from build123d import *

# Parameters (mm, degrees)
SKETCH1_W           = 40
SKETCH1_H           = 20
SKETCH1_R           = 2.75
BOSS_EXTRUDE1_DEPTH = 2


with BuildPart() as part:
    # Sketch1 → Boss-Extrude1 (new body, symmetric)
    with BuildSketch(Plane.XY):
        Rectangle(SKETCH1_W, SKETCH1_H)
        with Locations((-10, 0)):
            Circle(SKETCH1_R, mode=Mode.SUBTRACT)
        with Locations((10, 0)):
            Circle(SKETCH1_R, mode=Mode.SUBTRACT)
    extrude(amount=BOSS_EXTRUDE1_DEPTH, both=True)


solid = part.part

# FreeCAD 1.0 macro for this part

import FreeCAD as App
import Part
import Sketcher
Q = App.Units.Quantity


def add_polygon(sketch, points):
    """Adds a closed chain of lines whose ends are joined by coincident constraints."""
    first, n = sketch.GeometryCount, len(points)
    for a, b in zip(points, points[1:] + points[:1]):
        sketch.addGeometry(Part.LineSegment(App.Vector(*a, 0), App.Vector(*b, 0)), False)
    for i in range(n):
        sketch.addConstraint(Sketcher.Constraint("Coincident", first + i, 2, first + (i + 1) % n, 1))

doc = App.newDocument("Part")
body = doc.addObject("PartDesign::Body", "Body")

sketch1 = doc.addObject("Sketcher::SketchObject", "Sketch")
body.addObject(sketch1)
sketch1.AttachmentSupport = (doc.XY_Plane, [""])
sketch1.MapMode = "FlatFace"
add_polygon(sketch1, [(-20, 10), (-20, -10), (20, -10), (20, 10)])
sketch1.addGeometry(Part.Circle(App.Vector(-10, 0, 0), App.Vector(0, 0, 1), 2.75), False)
sketch1.addGeometry(Part.Circle(App.Vector(10, 0, 0), App.Vector(0, 0, 1), 2.75), False)
sketch1.addConstraint(Sketcher.Constraint("Vertical", 0))
sketch1.addConstraint(Sketcher.Constraint("Horizontal", 1))
sketch1.addConstraint(Sketcher.Constraint("Vertical", 2))
sketch1.addConstraint(Sketcher.Constraint("Horizontal", 3))
sketch1.addConstraint(Sketcher.Constraint("Equal", 4, 5))
sketch1.addConstraint(Sketcher.Constraint("Symmetric", 4, 3, 5, 3, -1, 1))
sketch1.addConstraint(Sketcher.Constraint("Symmetric", 0, 2, 2, 2, -1, 1))
sketch1.addConstraint(Sketcher.Constraint("PointOnObject", 4, 3, -1))
sketch1.addConstraint(Sketcher.Constraint("Diameter", 4, Q("5.5 mm")))
sketch1.addConstraint(Sketcher.Constraint("DistanceX", 1, 1, 1, 2, Q("40 mm")))
sketch1.addConstraint(Sketcher.Constraint("DistanceY", 0, 2, 0, 1, Q("20 mm")))
sketch1.addConstraint(Sketcher.Constraint("DistanceX", 4, 3, -1, 1, Q("10 mm")))
pad1 = doc.addObject("PartDesign::Pad", "Pad")
body.addObject(pad1)
pad1.Profile = sketch1
pad1.Length = 4
pad1.Midplane = True

doc.recompute()
